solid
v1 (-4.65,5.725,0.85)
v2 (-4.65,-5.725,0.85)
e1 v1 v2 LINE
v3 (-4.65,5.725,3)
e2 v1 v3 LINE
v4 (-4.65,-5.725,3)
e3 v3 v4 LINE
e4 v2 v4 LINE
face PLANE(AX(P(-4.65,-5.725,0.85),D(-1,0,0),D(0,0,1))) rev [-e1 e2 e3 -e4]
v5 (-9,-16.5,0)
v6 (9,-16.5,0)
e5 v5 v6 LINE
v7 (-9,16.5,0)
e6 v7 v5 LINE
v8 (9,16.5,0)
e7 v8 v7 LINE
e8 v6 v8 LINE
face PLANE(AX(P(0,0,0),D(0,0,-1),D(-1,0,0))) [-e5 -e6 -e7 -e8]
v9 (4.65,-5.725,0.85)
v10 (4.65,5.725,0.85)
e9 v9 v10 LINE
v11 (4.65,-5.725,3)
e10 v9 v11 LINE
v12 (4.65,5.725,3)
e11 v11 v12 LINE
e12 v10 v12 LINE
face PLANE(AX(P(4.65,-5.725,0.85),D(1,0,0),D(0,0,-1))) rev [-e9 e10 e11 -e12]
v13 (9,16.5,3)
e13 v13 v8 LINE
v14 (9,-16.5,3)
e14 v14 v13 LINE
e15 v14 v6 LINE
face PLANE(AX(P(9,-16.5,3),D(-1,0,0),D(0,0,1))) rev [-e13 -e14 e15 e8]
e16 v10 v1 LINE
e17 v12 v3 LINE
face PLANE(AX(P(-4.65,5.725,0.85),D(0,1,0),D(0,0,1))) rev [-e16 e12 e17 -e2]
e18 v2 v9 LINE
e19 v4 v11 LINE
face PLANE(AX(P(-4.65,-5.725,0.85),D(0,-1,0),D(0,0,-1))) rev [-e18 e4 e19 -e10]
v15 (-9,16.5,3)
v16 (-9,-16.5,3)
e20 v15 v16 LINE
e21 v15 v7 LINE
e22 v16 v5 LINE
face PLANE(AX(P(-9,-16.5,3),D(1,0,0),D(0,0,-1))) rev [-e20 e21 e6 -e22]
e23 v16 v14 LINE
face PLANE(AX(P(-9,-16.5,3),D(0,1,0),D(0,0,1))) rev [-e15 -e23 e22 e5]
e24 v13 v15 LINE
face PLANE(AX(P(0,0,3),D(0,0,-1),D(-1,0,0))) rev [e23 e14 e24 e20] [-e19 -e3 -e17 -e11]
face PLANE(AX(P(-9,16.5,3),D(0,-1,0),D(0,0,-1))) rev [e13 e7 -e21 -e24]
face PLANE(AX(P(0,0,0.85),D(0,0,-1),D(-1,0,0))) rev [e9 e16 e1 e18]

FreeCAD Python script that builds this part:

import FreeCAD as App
import Part
import Sketcher
Q = App.Units.Quantity


def add_polygon(sketch, points):
    """Adds a closed chain of lines whose ends are joined by coincident constraints."""
    first, n = sketch.GeometryCount, len(points)
    for a, b in zip(points, points[1:] + points[:1]):
        sketch.addGeometry(Part.LineSegment(App.Vector(*a, 0), App.Vector(*b, 0)), False)
    for i in range(n):
        sketch.addConstraint(Sketcher.Constraint("Coincident", first + i, 2, first + (i + 1) % n, 1))

doc = App.newDocument("Part")
body = doc.addObject("PartDesign::Body", "Body")

sketch1 = body.newObject("Sketcher::SketchObject", "Sketch")
sketch1.AttachmentSupport = (doc.getObject("XY_Plane"), [""])
sketch1.MapMode = "FlatFace"
add_polygon(sketch1, [(-9, 16), (-9, -16), (9, -16), (9, 16)])
sketch1.addConstraint([
    Sketcher.Constraint("Vertical", 0),
    Sketcher.Constraint("Horizontal", 1),
    Sketcher.Constraint("Vertical", 2),
    Sketcher.Constraint("Horizontal", 3),
    Sketcher.Constraint("Symmetric", 0, 2, 2, 2, -1, 1),
    Sketcher.Constraint("DistanceX", 1, 1, 1, 2, Q("18 mm")),
    Sketcher.Constraint("DistanceY", 0, 2, 0, 1, Q("33 mm")),
])
pad1 = body.newObject("PartDesign::Pad", "Pad")
pad1.Profile = sketch1
pad1.Length = 3

sketch2 = body.newObject("Sketcher::SketchObject", "Sketch001")
sketch2.AttachmentSupport = (doc.getObject("XY_Plane"), [""])
sketch2.MapMode = "FlatFace"
sketch2.AttachmentOffset = App.Placement(App.Vector(0, 0, 3), App.Rotation())
add_polygon(sketch2, [(-5, 6), (-5, -6), (5, -6), (5, 6)])
sketch2.addConstraint([
    Sketcher.Constraint("Vertical", 0),
    Sketcher.Constraint("Horizontal", 1),
    Sketcher.Constraint("Vertical", 2),
    Sketcher.Constraint("Horizontal", 3),
    Sketcher.Constraint("Symmetric", 0, 2, 2, 2, -1, 1),
    Sketcher.Constraint("DistanceX", 1, 1, 1, 2, Q("9.3 mm")),
    Sketcher.Constraint("DistanceY", 0, 2, 0, 1, Q("11.45 mm")),
])
pocket1 = body.newObject("PartDesign::Pocket", "Pocket")
pocket1.Profile = sketch2
pocket1.Length = 2.15

doc.recompute()
